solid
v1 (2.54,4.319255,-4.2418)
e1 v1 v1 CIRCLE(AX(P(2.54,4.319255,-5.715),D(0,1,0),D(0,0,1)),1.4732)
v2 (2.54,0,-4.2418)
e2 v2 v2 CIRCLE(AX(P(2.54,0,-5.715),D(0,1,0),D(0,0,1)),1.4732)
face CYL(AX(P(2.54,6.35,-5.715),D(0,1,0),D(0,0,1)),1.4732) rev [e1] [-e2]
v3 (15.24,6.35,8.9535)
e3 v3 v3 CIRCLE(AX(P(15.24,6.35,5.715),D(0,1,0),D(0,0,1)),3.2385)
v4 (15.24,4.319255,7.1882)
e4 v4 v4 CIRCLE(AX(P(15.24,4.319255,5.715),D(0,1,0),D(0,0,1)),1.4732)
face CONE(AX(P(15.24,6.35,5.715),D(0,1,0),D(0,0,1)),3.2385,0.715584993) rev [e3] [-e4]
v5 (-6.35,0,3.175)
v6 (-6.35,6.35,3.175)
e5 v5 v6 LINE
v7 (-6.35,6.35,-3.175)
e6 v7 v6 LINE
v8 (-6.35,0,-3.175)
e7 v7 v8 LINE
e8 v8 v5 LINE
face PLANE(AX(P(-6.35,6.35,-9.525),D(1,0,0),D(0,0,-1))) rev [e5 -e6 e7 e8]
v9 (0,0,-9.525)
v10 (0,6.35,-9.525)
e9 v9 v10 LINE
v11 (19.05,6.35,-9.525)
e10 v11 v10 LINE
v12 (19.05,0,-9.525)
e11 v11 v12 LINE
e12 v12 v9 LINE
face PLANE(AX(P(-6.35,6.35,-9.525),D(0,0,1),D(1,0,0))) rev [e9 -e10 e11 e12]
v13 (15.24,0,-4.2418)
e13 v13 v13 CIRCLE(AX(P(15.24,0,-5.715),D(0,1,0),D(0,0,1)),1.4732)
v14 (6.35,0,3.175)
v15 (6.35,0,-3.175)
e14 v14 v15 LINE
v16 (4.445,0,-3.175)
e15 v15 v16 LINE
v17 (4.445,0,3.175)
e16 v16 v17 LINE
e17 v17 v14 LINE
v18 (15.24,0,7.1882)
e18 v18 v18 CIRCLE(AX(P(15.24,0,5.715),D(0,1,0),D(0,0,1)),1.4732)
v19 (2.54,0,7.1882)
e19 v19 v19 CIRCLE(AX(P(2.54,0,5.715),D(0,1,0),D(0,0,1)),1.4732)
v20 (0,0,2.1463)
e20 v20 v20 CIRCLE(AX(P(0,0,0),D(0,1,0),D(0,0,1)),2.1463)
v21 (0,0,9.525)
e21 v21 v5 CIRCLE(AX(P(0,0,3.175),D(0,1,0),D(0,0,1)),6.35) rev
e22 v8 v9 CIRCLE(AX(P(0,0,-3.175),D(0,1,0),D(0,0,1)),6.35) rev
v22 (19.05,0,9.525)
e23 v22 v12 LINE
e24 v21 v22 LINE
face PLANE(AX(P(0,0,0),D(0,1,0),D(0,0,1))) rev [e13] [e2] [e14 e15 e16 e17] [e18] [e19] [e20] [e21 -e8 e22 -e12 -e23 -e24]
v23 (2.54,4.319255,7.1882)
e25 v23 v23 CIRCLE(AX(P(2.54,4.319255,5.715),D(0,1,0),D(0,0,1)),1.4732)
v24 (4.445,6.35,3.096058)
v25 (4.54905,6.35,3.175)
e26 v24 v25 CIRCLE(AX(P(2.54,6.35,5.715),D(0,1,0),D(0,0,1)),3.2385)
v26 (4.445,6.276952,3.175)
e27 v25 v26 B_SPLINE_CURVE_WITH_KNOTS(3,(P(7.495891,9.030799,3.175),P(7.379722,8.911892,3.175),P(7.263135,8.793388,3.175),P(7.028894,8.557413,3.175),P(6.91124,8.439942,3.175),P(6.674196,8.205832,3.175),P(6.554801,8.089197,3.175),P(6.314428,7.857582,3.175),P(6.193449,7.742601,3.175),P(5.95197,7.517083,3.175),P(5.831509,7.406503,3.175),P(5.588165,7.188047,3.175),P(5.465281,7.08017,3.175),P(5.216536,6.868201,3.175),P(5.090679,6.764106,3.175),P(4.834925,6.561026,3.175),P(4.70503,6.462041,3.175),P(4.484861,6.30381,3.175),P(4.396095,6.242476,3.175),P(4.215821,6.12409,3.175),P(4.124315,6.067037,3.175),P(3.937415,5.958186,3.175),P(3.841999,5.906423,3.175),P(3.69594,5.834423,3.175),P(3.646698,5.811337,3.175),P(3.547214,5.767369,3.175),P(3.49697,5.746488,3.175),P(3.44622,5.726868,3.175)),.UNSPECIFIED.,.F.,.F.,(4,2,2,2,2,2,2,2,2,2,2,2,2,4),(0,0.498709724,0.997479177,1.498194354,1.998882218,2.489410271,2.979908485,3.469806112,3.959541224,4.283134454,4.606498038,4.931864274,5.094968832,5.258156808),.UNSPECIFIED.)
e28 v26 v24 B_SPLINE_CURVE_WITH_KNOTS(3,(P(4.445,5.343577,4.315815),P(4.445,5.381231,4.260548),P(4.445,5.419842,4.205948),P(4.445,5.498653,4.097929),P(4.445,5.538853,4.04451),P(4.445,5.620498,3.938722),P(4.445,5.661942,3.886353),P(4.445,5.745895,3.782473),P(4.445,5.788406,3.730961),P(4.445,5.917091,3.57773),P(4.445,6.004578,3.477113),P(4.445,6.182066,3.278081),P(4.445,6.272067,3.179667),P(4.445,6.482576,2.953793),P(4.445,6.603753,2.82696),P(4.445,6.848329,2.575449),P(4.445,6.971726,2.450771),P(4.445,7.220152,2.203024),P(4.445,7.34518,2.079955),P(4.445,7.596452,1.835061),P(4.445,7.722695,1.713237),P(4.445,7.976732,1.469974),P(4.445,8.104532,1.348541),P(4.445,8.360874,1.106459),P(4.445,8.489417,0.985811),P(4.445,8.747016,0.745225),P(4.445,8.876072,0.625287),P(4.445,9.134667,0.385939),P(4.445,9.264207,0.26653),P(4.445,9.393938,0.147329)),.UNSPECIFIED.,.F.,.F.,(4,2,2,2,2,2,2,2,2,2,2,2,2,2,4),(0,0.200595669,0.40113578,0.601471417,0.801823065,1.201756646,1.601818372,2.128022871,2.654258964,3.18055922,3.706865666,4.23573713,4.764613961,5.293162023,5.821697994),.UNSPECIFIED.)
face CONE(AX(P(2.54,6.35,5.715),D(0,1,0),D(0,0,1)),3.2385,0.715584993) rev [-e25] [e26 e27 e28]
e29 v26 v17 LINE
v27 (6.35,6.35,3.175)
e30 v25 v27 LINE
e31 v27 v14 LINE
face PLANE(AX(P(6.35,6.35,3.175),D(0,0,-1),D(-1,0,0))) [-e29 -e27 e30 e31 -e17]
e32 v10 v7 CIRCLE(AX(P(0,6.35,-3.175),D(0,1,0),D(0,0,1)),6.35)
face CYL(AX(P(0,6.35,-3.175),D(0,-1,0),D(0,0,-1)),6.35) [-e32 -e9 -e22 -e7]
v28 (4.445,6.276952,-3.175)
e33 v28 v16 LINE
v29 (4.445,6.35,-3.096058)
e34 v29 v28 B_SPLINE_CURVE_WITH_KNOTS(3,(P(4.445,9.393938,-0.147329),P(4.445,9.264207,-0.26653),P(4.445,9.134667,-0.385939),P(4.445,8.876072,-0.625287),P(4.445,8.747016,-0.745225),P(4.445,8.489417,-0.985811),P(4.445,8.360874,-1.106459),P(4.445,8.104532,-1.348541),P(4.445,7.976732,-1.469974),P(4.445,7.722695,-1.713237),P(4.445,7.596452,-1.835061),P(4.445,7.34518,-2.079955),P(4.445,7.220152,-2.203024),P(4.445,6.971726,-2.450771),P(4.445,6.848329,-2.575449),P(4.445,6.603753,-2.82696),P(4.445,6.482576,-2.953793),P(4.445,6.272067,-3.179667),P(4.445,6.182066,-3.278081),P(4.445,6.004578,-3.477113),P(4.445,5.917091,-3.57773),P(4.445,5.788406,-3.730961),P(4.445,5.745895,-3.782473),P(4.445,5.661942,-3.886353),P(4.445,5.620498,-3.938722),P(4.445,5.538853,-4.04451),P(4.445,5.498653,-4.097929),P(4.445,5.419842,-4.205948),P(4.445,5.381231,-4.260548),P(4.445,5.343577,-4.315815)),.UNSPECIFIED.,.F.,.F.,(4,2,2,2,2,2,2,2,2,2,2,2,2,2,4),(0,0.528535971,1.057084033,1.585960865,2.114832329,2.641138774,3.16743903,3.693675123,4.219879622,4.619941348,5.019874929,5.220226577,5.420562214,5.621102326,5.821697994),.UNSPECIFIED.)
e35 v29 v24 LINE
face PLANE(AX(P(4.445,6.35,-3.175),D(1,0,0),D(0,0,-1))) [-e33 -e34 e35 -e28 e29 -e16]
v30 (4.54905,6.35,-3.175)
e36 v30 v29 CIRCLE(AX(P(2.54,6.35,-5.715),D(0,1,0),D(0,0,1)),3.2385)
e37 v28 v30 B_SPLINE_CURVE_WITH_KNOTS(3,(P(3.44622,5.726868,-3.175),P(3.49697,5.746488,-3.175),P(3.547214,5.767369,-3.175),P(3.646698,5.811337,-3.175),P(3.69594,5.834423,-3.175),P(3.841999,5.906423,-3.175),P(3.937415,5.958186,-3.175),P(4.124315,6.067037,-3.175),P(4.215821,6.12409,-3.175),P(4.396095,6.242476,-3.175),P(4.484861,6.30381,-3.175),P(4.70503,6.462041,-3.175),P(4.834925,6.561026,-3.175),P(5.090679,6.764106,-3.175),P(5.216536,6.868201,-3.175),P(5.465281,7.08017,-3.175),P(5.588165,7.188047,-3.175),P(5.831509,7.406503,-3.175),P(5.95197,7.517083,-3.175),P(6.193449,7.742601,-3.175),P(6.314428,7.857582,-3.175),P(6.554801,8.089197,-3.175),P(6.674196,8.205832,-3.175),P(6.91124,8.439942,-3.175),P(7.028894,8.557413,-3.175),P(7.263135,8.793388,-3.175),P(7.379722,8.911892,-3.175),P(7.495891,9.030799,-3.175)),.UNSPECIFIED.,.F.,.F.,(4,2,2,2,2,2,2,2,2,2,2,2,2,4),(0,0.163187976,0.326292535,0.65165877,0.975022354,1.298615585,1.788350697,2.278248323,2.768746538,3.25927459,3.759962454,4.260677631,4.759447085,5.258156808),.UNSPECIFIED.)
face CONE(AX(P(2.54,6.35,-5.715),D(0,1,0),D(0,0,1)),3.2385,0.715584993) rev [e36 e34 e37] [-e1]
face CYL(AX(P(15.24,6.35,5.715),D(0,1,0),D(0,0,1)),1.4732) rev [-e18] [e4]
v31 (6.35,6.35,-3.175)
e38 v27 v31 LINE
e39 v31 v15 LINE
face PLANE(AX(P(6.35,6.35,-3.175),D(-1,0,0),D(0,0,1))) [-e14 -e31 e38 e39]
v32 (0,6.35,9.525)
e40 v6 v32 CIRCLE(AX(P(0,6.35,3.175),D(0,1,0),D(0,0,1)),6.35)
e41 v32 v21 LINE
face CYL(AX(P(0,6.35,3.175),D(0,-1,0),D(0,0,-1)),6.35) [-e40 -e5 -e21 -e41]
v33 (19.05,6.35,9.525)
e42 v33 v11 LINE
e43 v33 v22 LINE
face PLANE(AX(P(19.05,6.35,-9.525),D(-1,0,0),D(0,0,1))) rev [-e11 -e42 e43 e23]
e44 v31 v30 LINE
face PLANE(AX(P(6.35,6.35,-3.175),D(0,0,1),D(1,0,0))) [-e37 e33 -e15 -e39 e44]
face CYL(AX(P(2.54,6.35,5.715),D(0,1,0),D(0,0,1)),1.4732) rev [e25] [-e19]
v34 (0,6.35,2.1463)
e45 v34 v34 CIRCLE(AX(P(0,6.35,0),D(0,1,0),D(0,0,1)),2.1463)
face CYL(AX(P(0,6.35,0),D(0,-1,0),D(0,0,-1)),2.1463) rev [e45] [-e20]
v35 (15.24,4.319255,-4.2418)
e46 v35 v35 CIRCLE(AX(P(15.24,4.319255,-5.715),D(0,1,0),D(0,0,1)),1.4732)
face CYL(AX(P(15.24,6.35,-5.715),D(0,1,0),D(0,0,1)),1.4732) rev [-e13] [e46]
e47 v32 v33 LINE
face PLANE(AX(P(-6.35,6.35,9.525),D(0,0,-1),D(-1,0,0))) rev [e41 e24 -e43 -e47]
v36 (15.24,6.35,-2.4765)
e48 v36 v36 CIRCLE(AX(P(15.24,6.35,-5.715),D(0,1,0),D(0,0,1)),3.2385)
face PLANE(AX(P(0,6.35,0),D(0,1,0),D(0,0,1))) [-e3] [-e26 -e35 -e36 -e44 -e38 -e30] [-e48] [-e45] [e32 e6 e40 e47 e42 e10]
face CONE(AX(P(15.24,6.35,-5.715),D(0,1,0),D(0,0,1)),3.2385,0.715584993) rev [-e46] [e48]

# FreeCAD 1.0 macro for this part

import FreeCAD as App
import Part
import Sketcher
Q = App.Units.Quantity


def edges_at(feature, points):
    """Names of the edges that pass closest to the given points."""
    edges = feature.Shape.Edges
    near = lambda p: min(range(len(edges)), key=lambda i: edges[i].distToShape(Part.Vertex(*p))[0])
    return sorted({f"Edge{near(p) + 1}" for p in points})


def add_polygon(sketch, points):
    """Adds a closed chain of lines whose ends are joined by coincident constraints."""
    first, n = sketch.GeometryCount, len(points)
    for a, b in zip(points, points[1:] + points[:1]):
        sketch.addGeometry(Part.LineSegment(App.Vector(*a, 0), App.Vector(*b, 0)), False)
    for i in range(n):
        sketch.addConstraint(Sketcher.Constraint("Coincident", first + i, 2, first + (i + 1) % n, 1))

doc = App.newDocument("Part")
body = doc.addObject("PartDesign::Body", "Body")

# Sketch on XZ plane
sketch1 = doc.addObject("Sketcher::SketchObject", "Sketch")
body.addObject(sketch1)
sketch1.AttachmentSupport = (doc.XZ_Plane, [""])
sketch1.MapMode = "FlatFace"
add_polygon(sketch1, [(-6.35, -9.525), (-6.35, 9.525), (19.05, 9.525), (19.05, -9.525)])  # lines 0-3
sketch1.addGeometry(Part.Circle(App.Vector(0, 0, 0), App.Vector(0, 0, 1), 2.1463), False)  # 4
add_polygon(sketch1, [(6.35, 3.175), (4.445, 3.175), (4.445, -3.175), (6.35, -3.175)])  # lines 5-8
sketch1.addConstraint(Sketcher.Constraint("Vertical", 0))
sketch1.addConstraint(Sketcher.Constraint("Horizontal", 1))
sketch1.addConstraint(Sketcher.Constraint("Vertical", 2))
sketch1.addConstraint(Sketcher.Constraint("Horizontal", 3))
sketch1.addConstraint(Sketcher.Constraint("Horizontal", 5))
sketch1.addConstraint(Sketcher.Constraint("Vertical", 6))
sketch1.addConstraint(Sketcher.Constraint("Horizontal", 7))
sketch1.addConstraint(Sketcher.Constraint("Vertical", 8))
sketch1.addConstraint(Sketcher.Constraint("Coincident", 4, 3, -1, 1))
sketch1.addConstraint(Sketcher.Constraint("DistanceX", 1, 1, 1, 2, Q("1 in")))
sketch1.addConstraint(Sketcher.Constraint("Diameter", 4, Q("0.169 in")))
sketch1.addConstraint(Sketcher.Constraint("DistanceY", 0, 1, 0, 2, Q("0.75 in")))
sketch1.addConstraint(Sketcher.Constraint("DistanceY", 6, 2, 6, 1, Q("0.25 in")))
sketch1.addConstraint(Sketcher.Constraint("DistanceY", 3, 2, 5, 2, Q("0.5 in")))
sketch1.addConstraint(Sketcher.Constraint("DistanceX", 3, 2, 7, 2, Q("0.5 in")))
sketch1.addConstraint(Sketcher.Constraint("DistanceX", 5, 2, 5, 1, Q("0.075 in")))
sketch1.addConstraint(Sketcher.Constraint("DistanceX", 0, 2, -1, 1, Q("0.25 in")))
sketch1.addConstraint(Sketcher.Constraint("DistanceY", -1, 1, 0, 2, Q("0.375 in")))
pad1 = doc.addObject("PartDesign::Pad", "Pad")
body.addObject(pad1)
pad1.Profile = sketch1
pad1.Length = Q("0.25 in")
pad1.Reversed = True

# Sketch on XZ plane
sketch2 = doc.addObject("Sketcher::SketchObject", "Sketch001")
body.addObject(sketch2)
sketch2.AttachmentSupport = (doc.XZ_Plane, [""])
sketch2.MapMode = "FlatFace"
sketch2.AttachmentOffset = App.Placement(App.Vector(0, 0, -0.25 * 25.4), App.Rotation())
sketch2.addGeometry(Part.Circle(App.Vector(2.54, -5.715, 0), App.Vector(0, 0, 1), 1.4732), False)
sketch2.addGeometry(Part.Circle(App.Vector(15.24, 5.715, 0), App.Vector(0, 0, 1), 1.4732), False)
sketch2.addGeometry(Part.Circle(App.Vector(2.54, 5.715, 0), App.Vector(0, 0, 1), 1.4732), False)
sketch2.addGeometry(Part.Circle(App.Vector(15.24, -5.715, 0), App.Vector(0, 0, 1), 1.4732), False)
sketch2.addConstraint(Sketcher.Constraint("Equal", 0, 1))
sketch2.addConstraint(Sketcher.Constraint("Equal", 1, 2))
sketch2.addConstraint(Sketcher.Constraint("Equal", 2, 3))
sketch2.addConstraint(Sketcher.Constraint("Symmetric", 0, 3, 2, 3, -1))
sketch2.addConstraint(Sketcher.Constraint("Symmetric", 1, 3, 3, 3, -1))
sketch2.addConstraint(Sketcher.Constraint("Horizontal", 1, 3, 2, 3))
sketch2.addConstraint(Sketcher.Constraint("Diameter", 0, Q("0.116 in")))
sketch2.addConstraint(Sketcher.Constraint("DistanceX", -1, 1, 0, 3, Q("0.1 in")))
sketch2.addConstraint(Sketcher.Constraint("DistanceX", -1, 1, 1, 3, Q("0.6 in")))
sketch2.addConstraint(Sketcher.Constraint("DistanceY", 0, 3, 1, 3, Q("0.45 in")))
doc.recompute()
hole = doc.addObject("PartDesign::Hole", "Hole")
body.addObject(hole)
hole.Profile = sketch2
hole.ThreadType = "None"
hole.Diameter = Q("0.116 in")
hole.DepthType = "ThroughAll"
hole.HoleCutType = "Countersink"
hole.HoleCutDiameter = Q("0.255 in")
hole.HoleCutCountersinkAngle = 82
hole.Reversed = True
doc.recompute()

fillet = doc.addObject("PartDesign::Fillet", "Fillet")
body.addObject(fillet)
fillet.Base = (hole, edges_at(hole, [(-6.35, 3.175, -9.525), (-6.35, 3.175, 9.525)]))
fillet.Radius = Q("0.25 in")

doc.recompute()
